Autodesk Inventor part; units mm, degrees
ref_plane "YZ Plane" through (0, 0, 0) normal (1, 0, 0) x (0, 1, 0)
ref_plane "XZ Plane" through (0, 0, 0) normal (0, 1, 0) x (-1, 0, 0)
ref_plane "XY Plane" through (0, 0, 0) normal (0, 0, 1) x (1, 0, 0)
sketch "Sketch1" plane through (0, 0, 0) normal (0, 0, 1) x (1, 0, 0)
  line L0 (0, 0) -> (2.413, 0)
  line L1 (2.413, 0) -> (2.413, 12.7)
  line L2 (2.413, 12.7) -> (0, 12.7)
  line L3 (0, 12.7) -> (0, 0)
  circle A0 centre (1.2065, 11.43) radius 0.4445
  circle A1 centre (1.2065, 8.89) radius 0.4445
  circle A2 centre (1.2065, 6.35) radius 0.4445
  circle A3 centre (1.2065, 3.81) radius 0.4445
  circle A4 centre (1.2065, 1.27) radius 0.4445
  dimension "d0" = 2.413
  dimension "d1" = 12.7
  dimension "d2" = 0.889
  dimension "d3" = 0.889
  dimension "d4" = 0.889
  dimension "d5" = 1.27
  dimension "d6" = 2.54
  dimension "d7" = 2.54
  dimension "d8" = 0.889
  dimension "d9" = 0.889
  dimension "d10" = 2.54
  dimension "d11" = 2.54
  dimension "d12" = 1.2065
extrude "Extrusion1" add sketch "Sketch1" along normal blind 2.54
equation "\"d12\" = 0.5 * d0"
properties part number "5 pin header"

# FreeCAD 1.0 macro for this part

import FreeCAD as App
import Part
import Sketcher
from FreeCAD import Vector
Q = App.Units.Quantity

doc = App.newDocument("Part")
params = doc.addObject("Spreadsheet::Sheet", "Params")
for row, (alias, value) in enumerate([
    ("sketch1_diameter", "0.035 in"),
    ("sketch1_height", "0.5 in"),
    ("sketch1_width", "0.095 in"),
    ("pad1_length", "0.1 in"),
], start=1):
    params.set(f"A{row}", alias)
    params.set(f"B{row}", "=" + value)
    params.setAlias(f"B{row}", alias)

body = doc.addObject("PartDesign::Body", "Body")

# Sketch on XY plane
sketch1 = body.newObject("Sketcher::SketchObject", "Sketch")
sketch1.AttachmentSupport = (doc.getObject("XY_Plane"), [""])
sketch1.MapMode = "FlatFace"
sketch1.addGeometry([
    Part.LineSegment(Vector(0, 12.7, 0), Vector(0, 0, 0)),  # 0
    Part.LineSegment(Vector(0, 0, 0), Vector(2.413, 0, 0)),  # 1
    Part.LineSegment(Vector(2.413, 0, 0), Vector(2.413, 12.7, 0)),  # 2
    Part.LineSegment(Vector(2.413, 12.7, 0), Vector(0, 12.7, 0)),  # 3
    Part.Circle(Vector(1.2065, 1.27, 0), Vector(0, 0, 1), 0.4445),  # 4
    Part.Circle(Vector(1.2065, 3.81, 0), Vector(0, 0, 1), 0.4445),  # 5
    Part.Circle(Vector(1.2065, 6.35, 0), Vector(0, 0, 1), 0.4445),  # 6
    Part.Circle(Vector(1.2065, 8.89, 0), Vector(0, 0, 1), 0.4445),  # 7
    Part.Circle(Vector(1.2065, 11.43, 0), Vector(0, 0, 1), 0.4445),  # 8
], False)
sketch1.addConstraint([
    Sketcher.Constraint("Coincident", 0, 2, 1, 1),
    Sketcher.Constraint("Coincident", 1, 2, 2, 1),
    Sketcher.Constraint("Coincident", 2, 2, 3, 1),
    Sketcher.Constraint("Coincident", 3, 2, 0, 1),
    Sketcher.Constraint("Vertical", 0),
    Sketcher.Constraint("Horizontal", 1),
    Sketcher.Constraint("Vertical", 2),
    Sketcher.Constraint("Horizontal", 3),
    Sketcher.Constraint("Coincident", 0, 2, -1, 1),
    Sketcher.Constraint("Equal", 4, 5),
    Sketcher.Constraint("Equal", 5, 6),
    Sketcher.Constraint("Equal", 6, 7),
    Sketcher.Constraint("Equal", 7, 8),
    Sketcher.Constraint("Vertical", 4, 3, 5, 3),
    Sketcher.Constraint("Vertical", 5, 3, 6, 3),
    Sketcher.Constraint("Vertical", 6, 3, 7, 3),
    Sketcher.Constraint("Vertical", 7, 3, 8, 3),
    Sketcher.Constraint("Diameter", 4, Q("0.035 in")),
    Sketcher.Constraint("DistanceY", 0, 2, 0, 1, Q("0.5 in")),
    Sketcher.Constraint("DistanceY", 4, 3, 5, 3, Q("0.1 in")),
    Sketcher.Constraint("DistanceY", 5, 3, 6, 3, Q("0.1 in")),
    Sketcher.Constraint("DistanceY", 6, 3, 7, 3, Q("0.1 in")),
    Sketcher.Constraint("DistanceY", 7, 3, 8, 3, Q("0.1 in")),
    Sketcher.Constraint("DistanceX", 1, 1, 1, 2, Q("0.095 in")),
    Sketcher.Constraint("DistanceY", -1, 1, 4, 3, Q("0.05 in")),
    Sketcher.Constraint("DistanceX", -1, 1, 4, 3, Q("0.0475 in")),
])
sketch1.setExpression("Constraints[17]", "Params.sketch1_diameter")
sketch1.setExpression("Constraints[18]", "Params.sketch1_height")
sketch1.setExpression("Constraints[23]", "Params.sketch1_width")
pad1 = body.newObject("PartDesign::Pad", "Pad")
pad1.Profile = sketch1
pad1.setExpression("Length", "Params.pad1_length")

doc.recompute()
